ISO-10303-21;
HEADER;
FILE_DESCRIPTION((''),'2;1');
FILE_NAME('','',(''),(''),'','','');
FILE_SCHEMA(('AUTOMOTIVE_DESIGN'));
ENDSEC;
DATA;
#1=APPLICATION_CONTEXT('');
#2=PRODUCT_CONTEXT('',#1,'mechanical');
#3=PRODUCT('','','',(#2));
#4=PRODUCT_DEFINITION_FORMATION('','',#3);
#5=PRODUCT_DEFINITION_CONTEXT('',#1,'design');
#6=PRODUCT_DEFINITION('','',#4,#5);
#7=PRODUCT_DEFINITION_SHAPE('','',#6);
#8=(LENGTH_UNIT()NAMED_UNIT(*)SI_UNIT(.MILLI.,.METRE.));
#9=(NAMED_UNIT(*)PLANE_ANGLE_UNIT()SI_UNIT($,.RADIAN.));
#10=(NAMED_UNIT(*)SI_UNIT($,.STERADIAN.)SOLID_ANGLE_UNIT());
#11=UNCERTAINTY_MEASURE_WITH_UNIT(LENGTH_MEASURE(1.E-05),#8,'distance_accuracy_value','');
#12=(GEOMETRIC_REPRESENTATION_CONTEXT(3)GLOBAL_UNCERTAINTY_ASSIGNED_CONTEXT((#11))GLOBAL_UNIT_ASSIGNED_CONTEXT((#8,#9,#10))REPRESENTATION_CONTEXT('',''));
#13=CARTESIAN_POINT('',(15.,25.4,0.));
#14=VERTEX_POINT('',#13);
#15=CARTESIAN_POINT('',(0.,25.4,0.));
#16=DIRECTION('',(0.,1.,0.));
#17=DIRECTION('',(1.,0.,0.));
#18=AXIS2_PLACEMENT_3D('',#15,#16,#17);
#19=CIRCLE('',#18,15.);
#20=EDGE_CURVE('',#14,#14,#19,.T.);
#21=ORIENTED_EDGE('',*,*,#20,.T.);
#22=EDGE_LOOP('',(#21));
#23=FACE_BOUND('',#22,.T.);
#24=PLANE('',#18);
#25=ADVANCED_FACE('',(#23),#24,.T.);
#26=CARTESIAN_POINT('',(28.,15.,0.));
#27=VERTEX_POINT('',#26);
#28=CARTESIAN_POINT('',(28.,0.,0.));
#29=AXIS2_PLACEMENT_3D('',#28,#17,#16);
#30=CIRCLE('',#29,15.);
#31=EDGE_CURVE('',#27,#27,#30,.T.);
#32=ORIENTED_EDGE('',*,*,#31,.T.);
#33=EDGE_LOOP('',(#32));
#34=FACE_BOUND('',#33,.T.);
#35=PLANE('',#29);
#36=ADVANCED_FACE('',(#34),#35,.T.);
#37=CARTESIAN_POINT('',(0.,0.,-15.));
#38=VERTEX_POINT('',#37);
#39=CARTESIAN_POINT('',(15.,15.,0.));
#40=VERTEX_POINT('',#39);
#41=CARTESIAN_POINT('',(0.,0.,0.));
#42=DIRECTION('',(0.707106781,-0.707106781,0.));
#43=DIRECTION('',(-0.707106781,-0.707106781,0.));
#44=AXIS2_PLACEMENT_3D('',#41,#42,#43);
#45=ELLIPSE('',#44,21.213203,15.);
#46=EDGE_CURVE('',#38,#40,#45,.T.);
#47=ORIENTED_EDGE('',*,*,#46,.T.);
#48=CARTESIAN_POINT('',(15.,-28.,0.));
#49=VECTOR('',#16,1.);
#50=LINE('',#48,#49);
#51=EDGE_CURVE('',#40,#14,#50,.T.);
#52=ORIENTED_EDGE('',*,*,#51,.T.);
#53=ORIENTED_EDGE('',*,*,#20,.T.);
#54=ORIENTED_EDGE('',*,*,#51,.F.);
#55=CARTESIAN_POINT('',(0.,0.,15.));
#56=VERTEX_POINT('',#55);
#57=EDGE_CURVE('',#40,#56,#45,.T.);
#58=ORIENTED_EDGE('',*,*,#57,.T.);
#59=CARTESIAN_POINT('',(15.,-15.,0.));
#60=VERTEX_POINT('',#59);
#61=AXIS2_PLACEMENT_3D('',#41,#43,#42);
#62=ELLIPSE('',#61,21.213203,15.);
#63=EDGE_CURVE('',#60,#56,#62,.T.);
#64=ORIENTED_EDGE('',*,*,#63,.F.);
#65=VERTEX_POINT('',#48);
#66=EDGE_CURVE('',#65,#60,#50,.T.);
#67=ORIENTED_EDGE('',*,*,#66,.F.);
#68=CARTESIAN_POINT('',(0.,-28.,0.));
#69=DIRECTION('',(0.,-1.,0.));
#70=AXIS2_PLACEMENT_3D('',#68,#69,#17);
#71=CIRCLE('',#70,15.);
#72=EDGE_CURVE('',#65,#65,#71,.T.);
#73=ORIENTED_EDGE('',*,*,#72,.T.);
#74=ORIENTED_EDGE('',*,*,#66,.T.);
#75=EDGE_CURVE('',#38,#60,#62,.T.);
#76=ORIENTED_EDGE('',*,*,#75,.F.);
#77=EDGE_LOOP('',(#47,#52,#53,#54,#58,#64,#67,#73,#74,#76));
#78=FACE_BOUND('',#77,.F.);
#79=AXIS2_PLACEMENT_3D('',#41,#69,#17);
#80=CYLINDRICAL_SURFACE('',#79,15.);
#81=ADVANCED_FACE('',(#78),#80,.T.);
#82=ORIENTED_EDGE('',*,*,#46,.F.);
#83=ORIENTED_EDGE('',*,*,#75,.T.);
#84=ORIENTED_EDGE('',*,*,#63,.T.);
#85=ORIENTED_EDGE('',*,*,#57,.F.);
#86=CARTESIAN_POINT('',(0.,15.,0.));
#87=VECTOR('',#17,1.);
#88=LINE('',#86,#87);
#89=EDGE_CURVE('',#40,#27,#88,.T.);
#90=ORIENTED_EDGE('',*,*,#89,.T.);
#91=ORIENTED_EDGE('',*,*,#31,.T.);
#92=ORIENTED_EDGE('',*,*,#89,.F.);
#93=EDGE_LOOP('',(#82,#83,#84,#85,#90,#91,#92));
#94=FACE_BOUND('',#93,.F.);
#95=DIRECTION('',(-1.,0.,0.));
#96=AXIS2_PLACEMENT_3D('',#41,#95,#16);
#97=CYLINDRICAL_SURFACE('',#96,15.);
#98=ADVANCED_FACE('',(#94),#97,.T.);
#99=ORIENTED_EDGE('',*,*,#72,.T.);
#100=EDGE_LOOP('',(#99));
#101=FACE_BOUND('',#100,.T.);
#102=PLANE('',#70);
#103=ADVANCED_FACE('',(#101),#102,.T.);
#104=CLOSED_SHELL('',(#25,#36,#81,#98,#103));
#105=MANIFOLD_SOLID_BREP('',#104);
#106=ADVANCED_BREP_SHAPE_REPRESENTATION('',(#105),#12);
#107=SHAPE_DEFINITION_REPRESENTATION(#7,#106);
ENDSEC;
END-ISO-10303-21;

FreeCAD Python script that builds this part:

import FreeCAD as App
import Part
import Sketcher
Q = App.Units.Quantity

doc = App.newDocument("Part")
body = doc.addObject("PartDesign::Body", "Body")

# Sketch on XZ plane
sketch1 = body.newObject("Sketcher::SketchObject", "Sketch")
sketch1.AttachmentSupport = (doc.getObject("XZ_Plane"), [""])
sketch1.MapMode = "FlatFace"
sketch1.addGeometry(Part.Circle(App.Vector(0, 0, 0), App.Vector(0, 0, 1), 15), False)
sketch1.addConstraint([
    Sketcher.Constraint("Coincident", 0, 3, -1, 1),
    Sketcher.Constraint("Diameter", 0, Q("30 mm")),
])
pad1 = body.newObject("PartDesign::Pad", "Pad")
pad1.Profile = sketch1
pad1.Length = 28

# Sketch on XZ plane
sketch2 = body.newObject("Sketcher::SketchObject", "Sketch001")
sketch2.AttachmentSupport = (doc.getObject("XZ_Plane"), [""])
sketch2.MapMode = "FlatFace"
sketch2.addGeometry(Part.Circle(App.Vector(0, 0, 0), App.Vector(0, 0, 1), 15), False)
sketch2.addConstraint([
    Sketcher.Constraint("Coincident", 0, 3, -1, 1),
    Sketcher.Constraint("Diameter", 0, Q("30 mm")),
])
pad2 = body.newObject("PartDesign::Pad", "Pad001")
pad2.Profile = sketch2
pad2.Length = 25.4
pad2.Reversed = True

# Sketch on YZ plane
sketch3 = body.newObject("Sketcher::SketchObject", "Sketch002")
sketch3.AttachmentSupport = (doc.getObject("YZ_Plane"), [""])
sketch3.MapMode = "FlatFace"
sketch3.addGeometry(Part.Circle(App.Vector(0, 0, 0), App.Vector(0, 0, 1), 15), False)
sketch3.addConstraint([
    Sketcher.Constraint("Coincident", 0, 3, -1, 1),
    Sketcher.Constraint("Diameter", 0, Q("30 mm")),
])
pad3 = body.newObject("PartDesign::Pad", "Pad002")
pad3.Profile = sketch3
pad3.Length = 28

doc.recompute()
